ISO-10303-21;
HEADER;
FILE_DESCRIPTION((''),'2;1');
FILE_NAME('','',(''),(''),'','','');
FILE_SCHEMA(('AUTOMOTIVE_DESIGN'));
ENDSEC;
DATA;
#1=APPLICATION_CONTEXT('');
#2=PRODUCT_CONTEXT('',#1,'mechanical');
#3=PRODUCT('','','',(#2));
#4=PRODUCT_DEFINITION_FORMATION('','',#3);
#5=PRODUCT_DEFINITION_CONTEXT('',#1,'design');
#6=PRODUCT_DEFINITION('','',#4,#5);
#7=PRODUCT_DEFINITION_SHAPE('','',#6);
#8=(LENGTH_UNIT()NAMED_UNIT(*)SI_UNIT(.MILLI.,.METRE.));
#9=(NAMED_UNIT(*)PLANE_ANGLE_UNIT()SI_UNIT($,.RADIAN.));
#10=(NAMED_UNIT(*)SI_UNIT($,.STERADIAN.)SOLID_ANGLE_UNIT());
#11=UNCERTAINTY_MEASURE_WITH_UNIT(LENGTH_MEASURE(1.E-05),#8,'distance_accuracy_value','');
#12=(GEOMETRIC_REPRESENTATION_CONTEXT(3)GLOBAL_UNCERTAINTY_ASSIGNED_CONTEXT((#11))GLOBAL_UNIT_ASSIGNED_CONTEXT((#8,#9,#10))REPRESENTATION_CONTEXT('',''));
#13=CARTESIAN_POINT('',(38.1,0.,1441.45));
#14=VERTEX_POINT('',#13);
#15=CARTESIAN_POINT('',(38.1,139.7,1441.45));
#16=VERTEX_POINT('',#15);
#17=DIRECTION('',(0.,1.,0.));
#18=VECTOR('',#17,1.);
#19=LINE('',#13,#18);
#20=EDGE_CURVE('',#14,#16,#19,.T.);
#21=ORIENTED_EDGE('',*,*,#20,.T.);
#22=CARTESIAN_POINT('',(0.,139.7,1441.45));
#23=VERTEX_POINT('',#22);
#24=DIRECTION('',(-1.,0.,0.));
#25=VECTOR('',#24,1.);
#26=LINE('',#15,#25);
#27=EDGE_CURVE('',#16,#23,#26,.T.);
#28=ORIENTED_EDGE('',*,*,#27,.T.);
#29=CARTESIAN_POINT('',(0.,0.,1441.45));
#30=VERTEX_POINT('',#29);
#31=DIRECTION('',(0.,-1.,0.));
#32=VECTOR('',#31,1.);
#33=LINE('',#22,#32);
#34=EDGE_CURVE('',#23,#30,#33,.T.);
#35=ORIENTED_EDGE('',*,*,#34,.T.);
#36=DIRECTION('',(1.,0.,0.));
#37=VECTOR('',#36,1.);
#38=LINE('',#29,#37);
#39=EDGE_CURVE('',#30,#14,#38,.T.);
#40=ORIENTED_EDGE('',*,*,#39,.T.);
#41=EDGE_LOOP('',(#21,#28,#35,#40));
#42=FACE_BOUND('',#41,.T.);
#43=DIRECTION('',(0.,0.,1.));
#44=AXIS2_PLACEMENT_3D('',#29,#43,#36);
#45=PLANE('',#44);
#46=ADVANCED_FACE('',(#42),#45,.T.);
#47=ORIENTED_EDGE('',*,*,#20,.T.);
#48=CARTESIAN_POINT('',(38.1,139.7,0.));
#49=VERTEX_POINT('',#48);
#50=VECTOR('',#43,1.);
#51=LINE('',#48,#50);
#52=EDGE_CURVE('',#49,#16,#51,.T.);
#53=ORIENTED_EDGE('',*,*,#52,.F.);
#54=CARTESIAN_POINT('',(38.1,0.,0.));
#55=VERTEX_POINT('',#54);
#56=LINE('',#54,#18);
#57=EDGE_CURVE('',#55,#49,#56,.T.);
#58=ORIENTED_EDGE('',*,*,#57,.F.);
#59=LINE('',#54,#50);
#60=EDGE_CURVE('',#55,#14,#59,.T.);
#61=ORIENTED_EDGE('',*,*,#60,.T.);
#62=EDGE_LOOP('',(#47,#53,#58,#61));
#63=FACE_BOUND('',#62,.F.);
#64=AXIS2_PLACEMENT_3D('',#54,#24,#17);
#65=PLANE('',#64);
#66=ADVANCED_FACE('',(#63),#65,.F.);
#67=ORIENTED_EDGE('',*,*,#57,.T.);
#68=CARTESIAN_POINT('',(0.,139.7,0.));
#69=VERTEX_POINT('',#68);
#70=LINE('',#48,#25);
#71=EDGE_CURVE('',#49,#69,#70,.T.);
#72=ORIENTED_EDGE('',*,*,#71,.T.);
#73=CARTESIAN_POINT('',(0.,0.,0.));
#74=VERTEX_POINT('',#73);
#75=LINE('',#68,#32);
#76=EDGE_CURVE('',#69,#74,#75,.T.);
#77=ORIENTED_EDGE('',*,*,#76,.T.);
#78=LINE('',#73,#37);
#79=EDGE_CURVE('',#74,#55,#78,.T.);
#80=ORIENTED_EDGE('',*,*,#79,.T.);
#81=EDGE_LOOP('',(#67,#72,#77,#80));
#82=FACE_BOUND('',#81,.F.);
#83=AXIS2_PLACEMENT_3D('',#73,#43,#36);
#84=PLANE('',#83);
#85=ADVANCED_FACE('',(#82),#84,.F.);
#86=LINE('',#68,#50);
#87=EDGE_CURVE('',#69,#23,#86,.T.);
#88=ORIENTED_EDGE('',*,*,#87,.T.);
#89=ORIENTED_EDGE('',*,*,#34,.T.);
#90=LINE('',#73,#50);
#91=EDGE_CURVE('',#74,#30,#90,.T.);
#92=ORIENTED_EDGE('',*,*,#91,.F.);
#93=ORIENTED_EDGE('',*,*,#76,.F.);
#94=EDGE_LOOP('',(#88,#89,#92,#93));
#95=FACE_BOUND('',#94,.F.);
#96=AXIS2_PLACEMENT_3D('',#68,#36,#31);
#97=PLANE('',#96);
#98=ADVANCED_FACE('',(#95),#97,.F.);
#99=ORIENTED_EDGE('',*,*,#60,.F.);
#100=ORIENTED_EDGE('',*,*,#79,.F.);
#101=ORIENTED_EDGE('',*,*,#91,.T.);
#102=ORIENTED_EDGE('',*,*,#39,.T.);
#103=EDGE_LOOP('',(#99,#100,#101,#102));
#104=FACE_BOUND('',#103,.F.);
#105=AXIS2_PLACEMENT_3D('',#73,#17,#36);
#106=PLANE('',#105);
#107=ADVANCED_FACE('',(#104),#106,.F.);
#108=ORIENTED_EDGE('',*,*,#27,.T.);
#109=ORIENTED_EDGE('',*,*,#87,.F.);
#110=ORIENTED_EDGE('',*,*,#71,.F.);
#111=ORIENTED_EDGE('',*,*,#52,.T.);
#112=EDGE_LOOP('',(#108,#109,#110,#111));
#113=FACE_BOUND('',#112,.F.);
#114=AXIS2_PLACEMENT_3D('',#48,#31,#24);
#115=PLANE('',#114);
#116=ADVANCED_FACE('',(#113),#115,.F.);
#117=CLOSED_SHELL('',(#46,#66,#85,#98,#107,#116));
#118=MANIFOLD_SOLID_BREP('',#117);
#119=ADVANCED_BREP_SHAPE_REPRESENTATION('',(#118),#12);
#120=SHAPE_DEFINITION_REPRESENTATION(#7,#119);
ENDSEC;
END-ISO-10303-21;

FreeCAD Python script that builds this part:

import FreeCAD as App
import Part
import Sketcher
Q = App.Units.Quantity


def add_polygon(sketch, points):
    """Adds a closed chain of lines whose ends are joined by coincident constraints."""
    first, n = sketch.GeometryCount, len(points)
    for a, b in zip(points, points[1:] + points[:1]):
        sketch.addGeometry(Part.LineSegment(App.Vector(*a, 0), App.Vector(*b, 0)), False)
    for i in range(n):
        sketch.addConstraint(Sketcher.Constraint("Coincident", first + i, 2, first + (i + 1) % n, 1))

doc = App.newDocument("Part")
body = doc.addObject("PartDesign::Body", "Body")

# Sketch on XY plane
sketch1 = body.newObject("Sketcher::SketchObject", "Sketch")
sketch1.AttachmentSupport = (doc.getObject("XY_Plane"), [""])
sketch1.MapMode = "FlatFace"
add_polygon(sketch1, [(0, 140), (0, 0), (38, 0), (38, 140)])  # lines 0-3
sketch1.addConstraint([
    Sketcher.Constraint("Vertical", 0),
    Sketcher.Constraint("Horizontal", 1),
    Sketcher.Constraint("Vertical", 2),
    Sketcher.Constraint("Horizontal", 3),
    Sketcher.Constraint("Coincident", 0, 2, -1, 1),
    Sketcher.Constraint("DistanceX", 1, 1, 1, 2, Q("1.5 in")),
    Sketcher.Constraint("DistanceY", 0, 2, 0, 1, Q("5.5 in")),
])
pad1 = body.newObject("PartDesign::Pad", "Pad")
pad1.Profile = sketch1
pad1.Length = Q("56.75 in")

doc.recompute()
